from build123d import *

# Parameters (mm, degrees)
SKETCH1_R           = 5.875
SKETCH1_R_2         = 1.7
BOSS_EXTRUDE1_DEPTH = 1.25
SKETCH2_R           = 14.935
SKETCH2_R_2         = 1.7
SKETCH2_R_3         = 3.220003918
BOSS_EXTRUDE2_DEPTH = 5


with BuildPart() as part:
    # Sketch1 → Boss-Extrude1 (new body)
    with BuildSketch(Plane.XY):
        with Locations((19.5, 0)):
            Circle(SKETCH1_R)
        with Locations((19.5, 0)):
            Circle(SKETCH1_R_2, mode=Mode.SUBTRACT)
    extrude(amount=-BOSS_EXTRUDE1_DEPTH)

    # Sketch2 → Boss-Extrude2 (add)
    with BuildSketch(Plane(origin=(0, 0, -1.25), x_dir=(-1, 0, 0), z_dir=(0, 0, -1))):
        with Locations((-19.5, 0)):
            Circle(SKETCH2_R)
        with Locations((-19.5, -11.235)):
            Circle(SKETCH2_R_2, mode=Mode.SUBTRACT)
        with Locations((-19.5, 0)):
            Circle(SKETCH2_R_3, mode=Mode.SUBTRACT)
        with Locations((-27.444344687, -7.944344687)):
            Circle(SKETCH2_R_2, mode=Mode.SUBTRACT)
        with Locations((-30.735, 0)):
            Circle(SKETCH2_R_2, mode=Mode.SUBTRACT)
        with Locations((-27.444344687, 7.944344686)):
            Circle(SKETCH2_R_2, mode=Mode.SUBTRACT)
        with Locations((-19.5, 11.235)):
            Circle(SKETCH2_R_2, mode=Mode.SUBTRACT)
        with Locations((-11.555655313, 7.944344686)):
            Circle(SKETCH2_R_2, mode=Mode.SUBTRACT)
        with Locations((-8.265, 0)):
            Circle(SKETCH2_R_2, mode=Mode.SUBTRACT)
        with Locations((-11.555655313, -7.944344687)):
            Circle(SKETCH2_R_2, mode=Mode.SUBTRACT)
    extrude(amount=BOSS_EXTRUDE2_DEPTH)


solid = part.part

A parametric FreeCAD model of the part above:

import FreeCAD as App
import Part
import Sketcher

V = App.Vector

doc = App.newDocument("Part")
body = doc.addObject("PartDesign::Body", "Body")

# Sketch on XY plane
sketch1 = body.newObject("Sketcher::SketchObject", "Sketch")
sketch1.AttachmentSupport = (doc.getObject("XY_Plane"), [""])
sketch1.MapMode = "FlatFace"
sketch1.addGeometry([
    Part.Circle(V(19.5, 0, 0), V(0, 0, 1), 5.875),
    Part.Circle(V(19.5, 0, 0), V(0, 0, 1), 1.7),
], False)
sketch1.addConstraint([
    Sketcher.Constraint("Coincident", 1, 3, 0, 3),
    Sketcher.Constraint("PointOnObject", 0, 3, -1),
    Sketcher.Constraint("Diameter", 1, 3.4),
    Sketcher.Constraint("Diameter", 0, 11.75),
    Sketcher.Constraint("DistanceX", -1, 1, 0, 3, 19.5),
])
pad1 = body.newObject("PartDesign::Pad", "Pad")
pad1.Profile = sketch1
pad1.Length = 1.25
pad1.Reversed = True

# Sketch on XY plane
sketch2 = body.newObject("Sketcher::SketchObject", "Sketch001")
sketch2.AttachmentSupport = (doc.getObject("XY_Plane"), [""])
sketch2.MapMode = "FlatFace"
sketch2.AttachmentOffset = App.Placement(V(0, 0, -1.25), App.Rotation())
sketch2.addGeometry([
    Part.Circle(V(19.5, 0, 0), V(0, 0, 1), 14.935),  # 0
    Part.Circle(V(27.444345, -7.944345, 0), V(0, 0, 1), 1.7),  # 1
    Part.Circle(V(19.5, -11.235, 0), V(0, 0, 1), 1.7),  # 2
    Part.Circle(V(11.555655, -7.944345, 0), V(0, 0, 1), 1.7),  # 3
    Part.Circle(V(30.735, 0, 0), V(0, 0, 1), 1.7),  # 4
    Part.Circle(V(27.444345, 7.944345, 0), V(0, 0, 1), 1.7),  # 5
    Part.Circle(V(19.5, 0, 0), V(0, 0, 1), 3.220004),  # 6
    Part.Circle(V(8.265, 0, 0), V(0, 0, 1), 1.7),  # 7
    Part.Circle(V(19.5, 11.235, 0), V(0, 0, 1), 1.7),  # 8
    Part.Circle(V(11.555655, 7.944345, 0), V(0, 0, 1), 1.7),  # 9
], False)
sketch2.addConstraint([
    Sketcher.Constraint("Coincident", 6, 3, 0, 3),
    Sketcher.Constraint("Equal", 1, 2),
    Sketcher.Constraint("Equal", 2, 3),
    Sketcher.Constraint("Equal", 3, 4),
    Sketcher.Constraint("Equal", 4, 5),
    Sketcher.Constraint("Equal", 5, 7),
    Sketcher.Constraint("Equal", 7, 8),
    Sketcher.Constraint("Equal", 8, 9),
    Sketcher.Constraint("Symmetric", 1, 3, 5, 3, -1),
    Sketcher.Constraint("Symmetric", 2, 3, 8, 3, -1),
    Sketcher.Constraint("Symmetric", 3, 3, 9, 3, -1),
    Sketcher.Constraint("PointOnObject", 0, 3, -1),
    Sketcher.Constraint("PointOnObject", 4, 3, -1),
    Sketcher.Constraint("PointOnObject", 7, 3, -1),
    Sketcher.Constraint("Horizontal", 1, 3, 3, 3),
    Sketcher.Constraint("Vertical", 0, 3, 2, 3),
    Sketcher.Constraint("Diameter", 1, 3.4),
    Sketcher.Constraint("Diameter", 0, 29.87),
    Sketcher.Constraint("DistanceX", -1, 1, 0, 3, 19.5),
    Sketcher.Constraint("Diameter", 6, 6.440008),
    Sketcher.Constraint("DistanceY", 2, 3, -1, 1, 11.235),
    Sketcher.Constraint("DistanceX", -1, 1, 4, 3, 30.735),
    Sketcher.Constraint("DistanceX", -1, 1, 7, 3, 8.265),
    Sketcher.Constraint("DistanceX", 3, 3, 1, 3, 15.888689),
    Sketcher.Constraint("DistanceY", 1, 3, 5, 3, 15.888689),
    Sketcher.Constraint("DistanceX", -1, 1, 1, 3, 27.444345),
])
pad2 = body.newObject("PartDesign::Pad", "Pad001")
pad2.Profile = sketch2
pad2.Length = 5
pad2.Reversed = True

doc.recompute()
